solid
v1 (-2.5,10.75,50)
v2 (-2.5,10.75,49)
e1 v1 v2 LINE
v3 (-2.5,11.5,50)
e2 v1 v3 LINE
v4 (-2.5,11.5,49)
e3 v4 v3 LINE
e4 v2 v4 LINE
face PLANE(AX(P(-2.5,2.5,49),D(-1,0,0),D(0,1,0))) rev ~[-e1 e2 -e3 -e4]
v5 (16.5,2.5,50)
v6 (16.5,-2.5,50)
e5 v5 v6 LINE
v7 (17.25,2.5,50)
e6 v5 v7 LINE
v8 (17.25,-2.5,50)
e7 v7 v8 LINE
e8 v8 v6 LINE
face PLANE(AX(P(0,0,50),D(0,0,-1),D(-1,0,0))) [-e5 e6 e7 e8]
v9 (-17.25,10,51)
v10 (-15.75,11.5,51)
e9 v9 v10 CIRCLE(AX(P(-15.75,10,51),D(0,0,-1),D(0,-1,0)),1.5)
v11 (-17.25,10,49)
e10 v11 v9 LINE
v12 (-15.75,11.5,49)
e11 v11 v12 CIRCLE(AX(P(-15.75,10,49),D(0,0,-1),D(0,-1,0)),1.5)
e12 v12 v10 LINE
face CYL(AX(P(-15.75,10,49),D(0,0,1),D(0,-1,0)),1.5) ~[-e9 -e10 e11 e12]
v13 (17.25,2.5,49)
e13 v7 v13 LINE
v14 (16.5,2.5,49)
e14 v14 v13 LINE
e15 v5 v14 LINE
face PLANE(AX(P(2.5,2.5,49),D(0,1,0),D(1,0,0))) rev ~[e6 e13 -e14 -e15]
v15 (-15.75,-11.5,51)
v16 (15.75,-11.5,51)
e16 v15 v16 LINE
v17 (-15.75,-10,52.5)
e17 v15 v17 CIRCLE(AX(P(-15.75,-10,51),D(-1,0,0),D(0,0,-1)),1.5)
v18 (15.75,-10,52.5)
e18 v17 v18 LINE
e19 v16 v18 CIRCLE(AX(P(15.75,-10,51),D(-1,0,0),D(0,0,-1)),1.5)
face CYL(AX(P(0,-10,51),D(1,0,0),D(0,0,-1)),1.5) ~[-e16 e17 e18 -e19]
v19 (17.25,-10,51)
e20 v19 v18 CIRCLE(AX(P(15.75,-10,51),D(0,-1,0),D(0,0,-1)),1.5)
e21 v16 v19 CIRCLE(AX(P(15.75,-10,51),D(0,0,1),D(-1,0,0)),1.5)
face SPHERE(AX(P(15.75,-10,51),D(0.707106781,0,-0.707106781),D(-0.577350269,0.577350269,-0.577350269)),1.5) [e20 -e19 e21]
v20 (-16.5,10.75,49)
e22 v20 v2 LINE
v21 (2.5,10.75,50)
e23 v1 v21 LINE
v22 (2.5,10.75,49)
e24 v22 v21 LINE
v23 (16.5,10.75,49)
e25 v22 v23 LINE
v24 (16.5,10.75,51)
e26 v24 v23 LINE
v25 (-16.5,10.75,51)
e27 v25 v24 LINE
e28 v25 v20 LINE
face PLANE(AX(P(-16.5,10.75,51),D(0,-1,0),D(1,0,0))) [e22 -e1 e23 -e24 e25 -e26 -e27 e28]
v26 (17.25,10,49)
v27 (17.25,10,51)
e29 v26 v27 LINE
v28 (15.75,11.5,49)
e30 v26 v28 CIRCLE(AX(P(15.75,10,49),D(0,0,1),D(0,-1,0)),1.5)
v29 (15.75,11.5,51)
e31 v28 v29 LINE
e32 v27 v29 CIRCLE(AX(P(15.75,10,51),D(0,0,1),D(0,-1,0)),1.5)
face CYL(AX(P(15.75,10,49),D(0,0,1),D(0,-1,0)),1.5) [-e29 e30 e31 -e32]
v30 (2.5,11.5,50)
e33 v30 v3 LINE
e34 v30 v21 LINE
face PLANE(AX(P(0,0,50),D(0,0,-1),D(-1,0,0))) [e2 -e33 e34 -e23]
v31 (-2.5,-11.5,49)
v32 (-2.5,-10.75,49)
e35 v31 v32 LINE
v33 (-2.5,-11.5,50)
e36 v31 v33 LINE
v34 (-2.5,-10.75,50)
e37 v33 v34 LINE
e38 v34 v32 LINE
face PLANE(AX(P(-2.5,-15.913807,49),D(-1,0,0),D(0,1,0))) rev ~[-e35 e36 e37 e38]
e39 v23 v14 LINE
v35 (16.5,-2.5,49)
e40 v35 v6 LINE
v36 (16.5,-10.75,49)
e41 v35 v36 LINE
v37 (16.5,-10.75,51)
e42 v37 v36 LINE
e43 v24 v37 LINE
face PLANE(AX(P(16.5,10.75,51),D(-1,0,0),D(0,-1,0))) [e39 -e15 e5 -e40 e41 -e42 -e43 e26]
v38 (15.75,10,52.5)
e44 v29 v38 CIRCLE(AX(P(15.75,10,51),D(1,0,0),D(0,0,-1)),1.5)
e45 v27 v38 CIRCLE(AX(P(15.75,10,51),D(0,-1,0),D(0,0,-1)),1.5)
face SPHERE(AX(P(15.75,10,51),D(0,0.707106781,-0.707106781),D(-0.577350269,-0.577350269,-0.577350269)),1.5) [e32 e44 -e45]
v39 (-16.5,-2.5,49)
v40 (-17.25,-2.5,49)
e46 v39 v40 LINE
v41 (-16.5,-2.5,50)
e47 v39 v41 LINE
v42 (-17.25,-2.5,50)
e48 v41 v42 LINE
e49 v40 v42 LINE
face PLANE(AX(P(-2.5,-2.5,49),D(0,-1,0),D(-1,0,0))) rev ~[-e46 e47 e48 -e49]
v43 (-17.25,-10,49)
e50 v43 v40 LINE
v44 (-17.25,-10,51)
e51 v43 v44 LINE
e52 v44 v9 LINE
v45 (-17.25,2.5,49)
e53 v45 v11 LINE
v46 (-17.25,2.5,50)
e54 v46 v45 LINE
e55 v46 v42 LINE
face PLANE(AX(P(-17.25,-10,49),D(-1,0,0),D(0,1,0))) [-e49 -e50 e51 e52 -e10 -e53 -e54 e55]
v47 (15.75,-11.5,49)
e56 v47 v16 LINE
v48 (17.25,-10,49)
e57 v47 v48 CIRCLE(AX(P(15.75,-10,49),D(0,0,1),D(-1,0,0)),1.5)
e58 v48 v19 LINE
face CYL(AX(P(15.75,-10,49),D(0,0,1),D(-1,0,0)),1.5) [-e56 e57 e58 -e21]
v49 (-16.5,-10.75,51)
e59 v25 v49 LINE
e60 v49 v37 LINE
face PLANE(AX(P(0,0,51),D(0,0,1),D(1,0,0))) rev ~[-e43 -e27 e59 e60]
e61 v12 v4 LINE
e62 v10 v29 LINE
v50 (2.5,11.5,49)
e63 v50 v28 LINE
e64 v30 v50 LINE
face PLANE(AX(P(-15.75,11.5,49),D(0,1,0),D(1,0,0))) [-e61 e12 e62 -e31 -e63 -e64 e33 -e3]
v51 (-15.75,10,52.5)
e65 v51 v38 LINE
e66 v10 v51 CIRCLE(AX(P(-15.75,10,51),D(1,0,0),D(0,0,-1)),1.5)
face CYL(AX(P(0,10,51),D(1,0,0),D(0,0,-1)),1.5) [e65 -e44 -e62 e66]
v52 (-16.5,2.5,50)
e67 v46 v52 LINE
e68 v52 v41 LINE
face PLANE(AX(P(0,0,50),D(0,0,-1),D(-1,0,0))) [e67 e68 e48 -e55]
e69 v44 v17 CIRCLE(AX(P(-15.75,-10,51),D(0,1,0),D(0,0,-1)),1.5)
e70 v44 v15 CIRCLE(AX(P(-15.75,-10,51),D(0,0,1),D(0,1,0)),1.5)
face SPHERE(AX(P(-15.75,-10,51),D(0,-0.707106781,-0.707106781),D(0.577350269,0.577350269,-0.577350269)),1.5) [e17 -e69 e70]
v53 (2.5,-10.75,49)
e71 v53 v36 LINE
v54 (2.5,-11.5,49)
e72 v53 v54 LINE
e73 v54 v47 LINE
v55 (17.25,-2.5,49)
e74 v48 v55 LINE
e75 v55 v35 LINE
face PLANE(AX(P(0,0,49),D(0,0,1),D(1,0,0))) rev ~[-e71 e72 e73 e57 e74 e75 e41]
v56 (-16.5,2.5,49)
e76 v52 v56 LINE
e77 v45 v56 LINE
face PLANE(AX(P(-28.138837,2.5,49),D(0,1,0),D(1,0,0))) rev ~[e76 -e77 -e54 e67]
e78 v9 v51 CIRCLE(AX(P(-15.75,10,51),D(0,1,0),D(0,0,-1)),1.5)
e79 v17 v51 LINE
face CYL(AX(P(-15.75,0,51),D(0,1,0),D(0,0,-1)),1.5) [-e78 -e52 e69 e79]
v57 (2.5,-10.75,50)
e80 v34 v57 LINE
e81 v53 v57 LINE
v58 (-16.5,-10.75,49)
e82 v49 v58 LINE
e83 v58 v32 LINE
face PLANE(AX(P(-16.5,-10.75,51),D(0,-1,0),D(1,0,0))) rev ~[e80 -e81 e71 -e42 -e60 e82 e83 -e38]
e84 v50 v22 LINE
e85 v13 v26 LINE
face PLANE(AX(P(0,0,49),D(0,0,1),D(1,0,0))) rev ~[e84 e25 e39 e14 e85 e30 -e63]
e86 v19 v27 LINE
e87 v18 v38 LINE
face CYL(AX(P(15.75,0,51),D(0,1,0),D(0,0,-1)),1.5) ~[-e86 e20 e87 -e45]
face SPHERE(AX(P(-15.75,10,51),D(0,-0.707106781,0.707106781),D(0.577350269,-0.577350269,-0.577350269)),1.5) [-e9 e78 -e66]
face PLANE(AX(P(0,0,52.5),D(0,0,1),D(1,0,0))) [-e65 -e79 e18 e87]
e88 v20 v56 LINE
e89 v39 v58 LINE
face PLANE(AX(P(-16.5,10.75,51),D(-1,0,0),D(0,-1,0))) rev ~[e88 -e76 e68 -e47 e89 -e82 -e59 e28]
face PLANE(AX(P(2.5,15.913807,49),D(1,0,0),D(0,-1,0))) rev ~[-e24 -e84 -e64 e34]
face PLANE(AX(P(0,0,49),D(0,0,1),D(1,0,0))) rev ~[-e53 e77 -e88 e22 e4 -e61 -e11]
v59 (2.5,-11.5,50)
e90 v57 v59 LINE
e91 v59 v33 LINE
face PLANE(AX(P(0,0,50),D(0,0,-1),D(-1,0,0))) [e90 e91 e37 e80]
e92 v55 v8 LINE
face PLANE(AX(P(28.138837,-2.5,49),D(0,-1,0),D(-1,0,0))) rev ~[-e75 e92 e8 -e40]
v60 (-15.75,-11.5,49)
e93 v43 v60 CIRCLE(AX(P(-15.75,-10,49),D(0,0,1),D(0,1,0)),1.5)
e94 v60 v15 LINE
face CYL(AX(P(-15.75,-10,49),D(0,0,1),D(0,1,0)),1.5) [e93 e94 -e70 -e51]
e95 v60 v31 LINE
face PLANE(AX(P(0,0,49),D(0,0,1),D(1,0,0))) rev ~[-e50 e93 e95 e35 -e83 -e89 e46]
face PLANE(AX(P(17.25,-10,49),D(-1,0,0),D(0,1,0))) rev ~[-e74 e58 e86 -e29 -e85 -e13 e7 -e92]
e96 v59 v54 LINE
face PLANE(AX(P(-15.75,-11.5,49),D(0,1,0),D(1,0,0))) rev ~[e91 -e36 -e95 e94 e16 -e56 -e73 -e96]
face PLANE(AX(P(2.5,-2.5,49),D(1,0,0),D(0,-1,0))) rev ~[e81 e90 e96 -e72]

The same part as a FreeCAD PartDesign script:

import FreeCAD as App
import Part
import Sketcher
from FreeCAD import Vector


def faces_at(feature, points):
    """Names of the faces that lie closest to the given points."""
    faces = feature.Shape.Faces
    near = lambda p: min(range(len(faces)), key=lambda i: faces[i].distToShape(Part.Vertex(*p))[0])
    return sorted({f"Face{near(p) + 1}" for p in points})


def add_polygon(sketch, points):
    """Adds a closed chain of lines whose ends are joined by coincident constraints."""
    first, n = sketch.GeometryCount, len(points)
    for a, b in zip(points, points[1:] + points[:1]):
        sketch.addGeometry(Part.LineSegment(App.Vector(*a, 0), App.Vector(*b, 0)), False)
    for i in range(n):
        sketch.addConstraint(Sketcher.Constraint("Coincident", first + i, 2, first + (i + 1) % n, 1))

doc = App.newDocument("Part")
body = doc.addObject("PartDesign::Body", "Body")

sketch1 = doc.addObject("Sketcher::SketchObject", "Sketch")
body.addObject(sketch1)
sketch1.AttachmentSupport = (doc.XY_Plane, [""])
sketch1.MapMode = "FlatFace"
add_polygon(sketch1, [(-16, 10), (-16, -10), (16, -10), (16, 10)])
sketch1.addConstraint([
    Sketcher.Constraint("Vertical", 0),
    Sketcher.Constraint("Horizontal", 1),
    Sketcher.Constraint("Vertical", 2),
    Sketcher.Constraint("Horizontal", 3),
    Sketcher.Constraint("Symmetric", 0, 2, 2, 2, -1, 1),
    Sketcher.Constraint("DistanceY", 0, 2, 0, 1, 20.0),
    Sketcher.Constraint("DistanceX", 1, 1, 1, 2, 31.5),
])
pad1 = doc.addObject("PartDesign::Pad", "Pad")
body.addObject(pad1)
pad1.Profile = sketch1
pad1.Length = 2
doc.recompute()

thickness = doc.addObject("PartDesign::Thickness", "Thickness")
body.addObject(thickness)
thickness.Base = (pad1, faces_at(pad1, [(0, 0, 0)]))
thickness.Value = 1.5
thickness.Reversed = False
thickness.Join = "Arc"

sketch2 = doc.addObject("Sketcher::SketchObject", "Sketch001")
body.addObject(sketch2)
sketch2.AttachmentSupport = (doc.XY_Plane, [""])
sketch2.MapMode = "FlatFace"
sketch2.AttachmentOffset = App.Placement(Vector(0, 0, 2), App.Rotation())
add_polygon(sketch2, [(-16, -11), (-16, 11), (16, 11), (16, -11)])
sketch2.addConstraint([
    Sketcher.Constraint("Vertical", 0),
    Sketcher.Constraint("Horizontal", 1),
    Sketcher.Constraint("Vertical", 2),
    Sketcher.Constraint("Horizontal", 3),
    Sketcher.Constraint("Symmetric", 0, 2, 2, 2, -1, 1),
    Sketcher.Constraint("DistanceX", 1, 1, 1, 2, 33.0),
    Sketcher.Constraint("DistanceY", 0, 1, 0, 2, 21.5),
])
pocket1 = doc.addObject("PartDesign::Pocket", "Pocket")
body.addObject(pocket1)
pocket1.Profile = sketch2
pocket1.Length = 5

sketch3 = doc.addObject("Sketcher::SketchObject", "Sketch002")
body.addObject(sketch3)
sketch3.AttachmentSupport = (doc.XY_Plane, [""])
sketch3.MapMode = "FlatFace"
add_polygon(sketch3, [(-2, 2), (-28, 2), (-28, -2), (-2, -2), (-2, -16), (2, -16), (2, -2), (28, -2), (28, 2), (2, 2), (2, 16), (-2, 16)])
sketch3.addConstraint([
    Sketcher.Constraint("Horizontal", 0),
    Sketcher.Constraint("Vertical", 1),
    Sketcher.Constraint("Horizontal", 2),
    Sketcher.Constraint("Vertical", 3),
    Sketcher.Constraint("Horizontal", 4),
    Sketcher.Constraint("Vertical", 5),
    Sketcher.Constraint("Horizontal", 6),
    Sketcher.Constraint("Vertical", 7),
    Sketcher.Constraint("Horizontal", 8),
    Sketcher.Constraint("Vertical", 9),
    Sketcher.Constraint("Horizontal", 10),
    Sketcher.Constraint("Vertical", 11),
    Sketcher.Constraint("Symmetric", 0, 2, 6, 2, -1, 1),
    Sketcher.Constraint("Symmetric", 2, 2, 8, 2, -1, 1),
    Sketcher.Constraint("Symmetric", 4, 2, 10, 2, -1, 1),
    Sketcher.Constraint("Symmetric", 2, 2, 5, 2, -2),
    Sketcher.Constraint("Equal", 10, 1),
    Sketcher.Constraint("DistanceX", 4, 1, 4, 2, 5.0),
    Sketcher.Constraint("DistanceX", 0, 2, 0, 1, 25.638837),
    Sketcher.Constraint("DistanceY", 3, 2, 3, 1, 13.413807),
])
pocket2 = doc.addObject("PartDesign::Pocket", "Pocket001")
body.addObject(pocket2)
pocket2.Profile = sketch3
pocket2.Length = 1
pocket2.Reversed = True
body2 = doc.addObject("PartDesign::Body", "Body001")
doc.recompute()

body.Placement = App.Placement(Vector(0, 0, 49), App.Rotation(Vector(0, 0, 1), 0))
boolean = doc.addObject("PartDesign::Boolean", "Boolean")
body2.addObject(boolean)
boolean.Type = "Fuse"
boolean.addObjects([body])

doc.recompute()
